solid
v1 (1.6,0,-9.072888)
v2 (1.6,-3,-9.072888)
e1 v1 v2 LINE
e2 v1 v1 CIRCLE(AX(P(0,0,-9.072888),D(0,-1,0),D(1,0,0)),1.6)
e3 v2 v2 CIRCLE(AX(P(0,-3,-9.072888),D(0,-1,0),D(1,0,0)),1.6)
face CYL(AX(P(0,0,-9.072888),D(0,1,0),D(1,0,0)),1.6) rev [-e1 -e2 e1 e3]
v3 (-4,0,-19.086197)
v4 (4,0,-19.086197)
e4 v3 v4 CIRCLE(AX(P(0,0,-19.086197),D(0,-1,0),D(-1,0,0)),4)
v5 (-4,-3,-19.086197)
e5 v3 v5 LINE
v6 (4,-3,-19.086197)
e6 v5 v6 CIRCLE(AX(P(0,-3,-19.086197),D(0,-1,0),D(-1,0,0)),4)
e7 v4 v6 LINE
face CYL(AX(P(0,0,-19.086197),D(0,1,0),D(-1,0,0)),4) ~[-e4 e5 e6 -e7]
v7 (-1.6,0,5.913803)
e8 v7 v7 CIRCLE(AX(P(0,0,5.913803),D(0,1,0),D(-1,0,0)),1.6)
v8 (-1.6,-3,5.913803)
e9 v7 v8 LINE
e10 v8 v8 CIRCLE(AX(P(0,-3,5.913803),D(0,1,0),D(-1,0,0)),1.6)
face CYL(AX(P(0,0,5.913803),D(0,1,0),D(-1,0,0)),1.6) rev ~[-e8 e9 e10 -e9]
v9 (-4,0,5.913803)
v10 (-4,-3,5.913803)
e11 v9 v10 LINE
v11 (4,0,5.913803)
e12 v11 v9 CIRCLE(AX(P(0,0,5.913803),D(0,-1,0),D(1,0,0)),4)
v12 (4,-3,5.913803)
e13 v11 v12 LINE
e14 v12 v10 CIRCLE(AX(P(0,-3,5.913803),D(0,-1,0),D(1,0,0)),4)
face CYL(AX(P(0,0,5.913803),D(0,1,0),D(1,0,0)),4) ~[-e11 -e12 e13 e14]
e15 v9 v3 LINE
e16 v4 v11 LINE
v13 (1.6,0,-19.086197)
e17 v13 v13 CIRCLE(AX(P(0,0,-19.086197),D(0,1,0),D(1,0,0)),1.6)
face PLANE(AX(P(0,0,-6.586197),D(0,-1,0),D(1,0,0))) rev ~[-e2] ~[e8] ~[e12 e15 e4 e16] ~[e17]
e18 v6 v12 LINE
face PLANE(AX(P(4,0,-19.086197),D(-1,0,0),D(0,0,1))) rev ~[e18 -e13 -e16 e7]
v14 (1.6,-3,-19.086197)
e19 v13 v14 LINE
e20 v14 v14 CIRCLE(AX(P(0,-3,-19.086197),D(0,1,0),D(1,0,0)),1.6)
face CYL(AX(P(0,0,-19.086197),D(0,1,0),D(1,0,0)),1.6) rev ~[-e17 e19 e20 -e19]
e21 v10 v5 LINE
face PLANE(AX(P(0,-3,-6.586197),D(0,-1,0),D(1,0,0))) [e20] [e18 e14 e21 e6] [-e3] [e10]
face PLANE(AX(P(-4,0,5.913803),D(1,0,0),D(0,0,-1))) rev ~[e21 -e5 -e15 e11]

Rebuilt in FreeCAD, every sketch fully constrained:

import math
import FreeCAD as App
import Part
import Sketcher

V = App.Vector
Q = App.Units.Quantity

doc = App.newDocument("Part")
params = doc.addObject("Spreadsheet::Sheet", "Params")
for row, (alias, value) in enumerate([
    ("sketch1_radius", "4 mm"),
    ("sketch1_diameter", "3.2 mm"),
    ("sketch1_height", "25 mm"),
    ("pad1_length", "3 mm"),
], start=1):
    params.set(f"A{row}", alias)
    params.set(f"B{row}", "=" + value)
    params.setAlias(f"B{row}", alias)

body = doc.addObject("PartDesign::Body", "Body")

sketch1 = body.newObject("Sketcher::SketchObject", "Sketch")
sketch1.AttachmentSupport = (doc.getObject("XZ_Plane"), [""])
sketch1.MapMode = "FlatFace"
sketch1.addGeometry([
    Part.LineSegment(V(4, -19.1, 0), V(4, 5.9, 0)),
    Part.ArcOfCircle(Part.Circle(V(0, 5.9, 0), V(0, 0, 1), 4), math.radians(0), math.radians(180)),
    Part.LineSegment(V(-4, 5.9, 0), V(-4, -19.1, 0)),
    Part.ArcOfCircle(Part.Circle(V(0, -19.1, 0), V(0, 0, 1), 4), math.radians(180), math.radians(360)),
    Part.Circle(V(0, -9.1, 0), V(0, 0, 1), 1.6),
    Part.Circle(V(0, -19.1, 0), V(0, 0, 1), 1.6),
    Part.Circle(V(0, 5.9, 0), V(0, 0, 1), 1.6),
], False)
sketch1.addConstraint([
    Sketcher.Constraint("Tangent", 0, 2, 1, 1),
    Sketcher.Constraint("Tangent", 1, 2, 2, 1),
    Sketcher.Constraint("Tangent", 2, 2, 3, 1),
    Sketcher.Constraint("Tangent", 3, 2, 0, 1),
    Sketcher.Constraint("Vertical", 0),
    Sketcher.Constraint("Vertical", 2),
    Sketcher.Constraint("Coincident", 5, 3, 3, 3),
    Sketcher.Constraint("Coincident", 6, 3, 1, 3),
    Sketcher.Constraint("Equal", 4, 5),
    Sketcher.Constraint("Equal", 5, 6),
    Sketcher.Constraint("PointOnObject", 1, 3, -2),
    Sketcher.Constraint("PointOnObject", 4, 3, -2),
    Sketcher.Constraint("Radius", 1, Q("4 mm")),
    Sketcher.Constraint("Diameter", 4, Q("3.2 mm")),
    Sketcher.Constraint("DistanceY", 0, 1, 0, 2, Q("25 mm")),
    Sketcher.Constraint("DistanceY", 4, 3, -1, 1, Q("9.072888 mm")),
    Sketcher.Constraint("DistanceY", 3, 3, 4, 3, Q("10.013309 mm")),
])
sketch1.setExpression("Constraints[12]", "Params.sketch1_radius")
sketch1.setExpression("Constraints[13]", "Params.sketch1_diameter")
sketch1.setExpression("Constraints[14]", "Params.sketch1_height")
pad1 = body.newObject("PartDesign::Pad", "Pad")
pad1.Profile = sketch1
pad1.setExpression("Length", "Params.pad1_length")

doc.recompute()
